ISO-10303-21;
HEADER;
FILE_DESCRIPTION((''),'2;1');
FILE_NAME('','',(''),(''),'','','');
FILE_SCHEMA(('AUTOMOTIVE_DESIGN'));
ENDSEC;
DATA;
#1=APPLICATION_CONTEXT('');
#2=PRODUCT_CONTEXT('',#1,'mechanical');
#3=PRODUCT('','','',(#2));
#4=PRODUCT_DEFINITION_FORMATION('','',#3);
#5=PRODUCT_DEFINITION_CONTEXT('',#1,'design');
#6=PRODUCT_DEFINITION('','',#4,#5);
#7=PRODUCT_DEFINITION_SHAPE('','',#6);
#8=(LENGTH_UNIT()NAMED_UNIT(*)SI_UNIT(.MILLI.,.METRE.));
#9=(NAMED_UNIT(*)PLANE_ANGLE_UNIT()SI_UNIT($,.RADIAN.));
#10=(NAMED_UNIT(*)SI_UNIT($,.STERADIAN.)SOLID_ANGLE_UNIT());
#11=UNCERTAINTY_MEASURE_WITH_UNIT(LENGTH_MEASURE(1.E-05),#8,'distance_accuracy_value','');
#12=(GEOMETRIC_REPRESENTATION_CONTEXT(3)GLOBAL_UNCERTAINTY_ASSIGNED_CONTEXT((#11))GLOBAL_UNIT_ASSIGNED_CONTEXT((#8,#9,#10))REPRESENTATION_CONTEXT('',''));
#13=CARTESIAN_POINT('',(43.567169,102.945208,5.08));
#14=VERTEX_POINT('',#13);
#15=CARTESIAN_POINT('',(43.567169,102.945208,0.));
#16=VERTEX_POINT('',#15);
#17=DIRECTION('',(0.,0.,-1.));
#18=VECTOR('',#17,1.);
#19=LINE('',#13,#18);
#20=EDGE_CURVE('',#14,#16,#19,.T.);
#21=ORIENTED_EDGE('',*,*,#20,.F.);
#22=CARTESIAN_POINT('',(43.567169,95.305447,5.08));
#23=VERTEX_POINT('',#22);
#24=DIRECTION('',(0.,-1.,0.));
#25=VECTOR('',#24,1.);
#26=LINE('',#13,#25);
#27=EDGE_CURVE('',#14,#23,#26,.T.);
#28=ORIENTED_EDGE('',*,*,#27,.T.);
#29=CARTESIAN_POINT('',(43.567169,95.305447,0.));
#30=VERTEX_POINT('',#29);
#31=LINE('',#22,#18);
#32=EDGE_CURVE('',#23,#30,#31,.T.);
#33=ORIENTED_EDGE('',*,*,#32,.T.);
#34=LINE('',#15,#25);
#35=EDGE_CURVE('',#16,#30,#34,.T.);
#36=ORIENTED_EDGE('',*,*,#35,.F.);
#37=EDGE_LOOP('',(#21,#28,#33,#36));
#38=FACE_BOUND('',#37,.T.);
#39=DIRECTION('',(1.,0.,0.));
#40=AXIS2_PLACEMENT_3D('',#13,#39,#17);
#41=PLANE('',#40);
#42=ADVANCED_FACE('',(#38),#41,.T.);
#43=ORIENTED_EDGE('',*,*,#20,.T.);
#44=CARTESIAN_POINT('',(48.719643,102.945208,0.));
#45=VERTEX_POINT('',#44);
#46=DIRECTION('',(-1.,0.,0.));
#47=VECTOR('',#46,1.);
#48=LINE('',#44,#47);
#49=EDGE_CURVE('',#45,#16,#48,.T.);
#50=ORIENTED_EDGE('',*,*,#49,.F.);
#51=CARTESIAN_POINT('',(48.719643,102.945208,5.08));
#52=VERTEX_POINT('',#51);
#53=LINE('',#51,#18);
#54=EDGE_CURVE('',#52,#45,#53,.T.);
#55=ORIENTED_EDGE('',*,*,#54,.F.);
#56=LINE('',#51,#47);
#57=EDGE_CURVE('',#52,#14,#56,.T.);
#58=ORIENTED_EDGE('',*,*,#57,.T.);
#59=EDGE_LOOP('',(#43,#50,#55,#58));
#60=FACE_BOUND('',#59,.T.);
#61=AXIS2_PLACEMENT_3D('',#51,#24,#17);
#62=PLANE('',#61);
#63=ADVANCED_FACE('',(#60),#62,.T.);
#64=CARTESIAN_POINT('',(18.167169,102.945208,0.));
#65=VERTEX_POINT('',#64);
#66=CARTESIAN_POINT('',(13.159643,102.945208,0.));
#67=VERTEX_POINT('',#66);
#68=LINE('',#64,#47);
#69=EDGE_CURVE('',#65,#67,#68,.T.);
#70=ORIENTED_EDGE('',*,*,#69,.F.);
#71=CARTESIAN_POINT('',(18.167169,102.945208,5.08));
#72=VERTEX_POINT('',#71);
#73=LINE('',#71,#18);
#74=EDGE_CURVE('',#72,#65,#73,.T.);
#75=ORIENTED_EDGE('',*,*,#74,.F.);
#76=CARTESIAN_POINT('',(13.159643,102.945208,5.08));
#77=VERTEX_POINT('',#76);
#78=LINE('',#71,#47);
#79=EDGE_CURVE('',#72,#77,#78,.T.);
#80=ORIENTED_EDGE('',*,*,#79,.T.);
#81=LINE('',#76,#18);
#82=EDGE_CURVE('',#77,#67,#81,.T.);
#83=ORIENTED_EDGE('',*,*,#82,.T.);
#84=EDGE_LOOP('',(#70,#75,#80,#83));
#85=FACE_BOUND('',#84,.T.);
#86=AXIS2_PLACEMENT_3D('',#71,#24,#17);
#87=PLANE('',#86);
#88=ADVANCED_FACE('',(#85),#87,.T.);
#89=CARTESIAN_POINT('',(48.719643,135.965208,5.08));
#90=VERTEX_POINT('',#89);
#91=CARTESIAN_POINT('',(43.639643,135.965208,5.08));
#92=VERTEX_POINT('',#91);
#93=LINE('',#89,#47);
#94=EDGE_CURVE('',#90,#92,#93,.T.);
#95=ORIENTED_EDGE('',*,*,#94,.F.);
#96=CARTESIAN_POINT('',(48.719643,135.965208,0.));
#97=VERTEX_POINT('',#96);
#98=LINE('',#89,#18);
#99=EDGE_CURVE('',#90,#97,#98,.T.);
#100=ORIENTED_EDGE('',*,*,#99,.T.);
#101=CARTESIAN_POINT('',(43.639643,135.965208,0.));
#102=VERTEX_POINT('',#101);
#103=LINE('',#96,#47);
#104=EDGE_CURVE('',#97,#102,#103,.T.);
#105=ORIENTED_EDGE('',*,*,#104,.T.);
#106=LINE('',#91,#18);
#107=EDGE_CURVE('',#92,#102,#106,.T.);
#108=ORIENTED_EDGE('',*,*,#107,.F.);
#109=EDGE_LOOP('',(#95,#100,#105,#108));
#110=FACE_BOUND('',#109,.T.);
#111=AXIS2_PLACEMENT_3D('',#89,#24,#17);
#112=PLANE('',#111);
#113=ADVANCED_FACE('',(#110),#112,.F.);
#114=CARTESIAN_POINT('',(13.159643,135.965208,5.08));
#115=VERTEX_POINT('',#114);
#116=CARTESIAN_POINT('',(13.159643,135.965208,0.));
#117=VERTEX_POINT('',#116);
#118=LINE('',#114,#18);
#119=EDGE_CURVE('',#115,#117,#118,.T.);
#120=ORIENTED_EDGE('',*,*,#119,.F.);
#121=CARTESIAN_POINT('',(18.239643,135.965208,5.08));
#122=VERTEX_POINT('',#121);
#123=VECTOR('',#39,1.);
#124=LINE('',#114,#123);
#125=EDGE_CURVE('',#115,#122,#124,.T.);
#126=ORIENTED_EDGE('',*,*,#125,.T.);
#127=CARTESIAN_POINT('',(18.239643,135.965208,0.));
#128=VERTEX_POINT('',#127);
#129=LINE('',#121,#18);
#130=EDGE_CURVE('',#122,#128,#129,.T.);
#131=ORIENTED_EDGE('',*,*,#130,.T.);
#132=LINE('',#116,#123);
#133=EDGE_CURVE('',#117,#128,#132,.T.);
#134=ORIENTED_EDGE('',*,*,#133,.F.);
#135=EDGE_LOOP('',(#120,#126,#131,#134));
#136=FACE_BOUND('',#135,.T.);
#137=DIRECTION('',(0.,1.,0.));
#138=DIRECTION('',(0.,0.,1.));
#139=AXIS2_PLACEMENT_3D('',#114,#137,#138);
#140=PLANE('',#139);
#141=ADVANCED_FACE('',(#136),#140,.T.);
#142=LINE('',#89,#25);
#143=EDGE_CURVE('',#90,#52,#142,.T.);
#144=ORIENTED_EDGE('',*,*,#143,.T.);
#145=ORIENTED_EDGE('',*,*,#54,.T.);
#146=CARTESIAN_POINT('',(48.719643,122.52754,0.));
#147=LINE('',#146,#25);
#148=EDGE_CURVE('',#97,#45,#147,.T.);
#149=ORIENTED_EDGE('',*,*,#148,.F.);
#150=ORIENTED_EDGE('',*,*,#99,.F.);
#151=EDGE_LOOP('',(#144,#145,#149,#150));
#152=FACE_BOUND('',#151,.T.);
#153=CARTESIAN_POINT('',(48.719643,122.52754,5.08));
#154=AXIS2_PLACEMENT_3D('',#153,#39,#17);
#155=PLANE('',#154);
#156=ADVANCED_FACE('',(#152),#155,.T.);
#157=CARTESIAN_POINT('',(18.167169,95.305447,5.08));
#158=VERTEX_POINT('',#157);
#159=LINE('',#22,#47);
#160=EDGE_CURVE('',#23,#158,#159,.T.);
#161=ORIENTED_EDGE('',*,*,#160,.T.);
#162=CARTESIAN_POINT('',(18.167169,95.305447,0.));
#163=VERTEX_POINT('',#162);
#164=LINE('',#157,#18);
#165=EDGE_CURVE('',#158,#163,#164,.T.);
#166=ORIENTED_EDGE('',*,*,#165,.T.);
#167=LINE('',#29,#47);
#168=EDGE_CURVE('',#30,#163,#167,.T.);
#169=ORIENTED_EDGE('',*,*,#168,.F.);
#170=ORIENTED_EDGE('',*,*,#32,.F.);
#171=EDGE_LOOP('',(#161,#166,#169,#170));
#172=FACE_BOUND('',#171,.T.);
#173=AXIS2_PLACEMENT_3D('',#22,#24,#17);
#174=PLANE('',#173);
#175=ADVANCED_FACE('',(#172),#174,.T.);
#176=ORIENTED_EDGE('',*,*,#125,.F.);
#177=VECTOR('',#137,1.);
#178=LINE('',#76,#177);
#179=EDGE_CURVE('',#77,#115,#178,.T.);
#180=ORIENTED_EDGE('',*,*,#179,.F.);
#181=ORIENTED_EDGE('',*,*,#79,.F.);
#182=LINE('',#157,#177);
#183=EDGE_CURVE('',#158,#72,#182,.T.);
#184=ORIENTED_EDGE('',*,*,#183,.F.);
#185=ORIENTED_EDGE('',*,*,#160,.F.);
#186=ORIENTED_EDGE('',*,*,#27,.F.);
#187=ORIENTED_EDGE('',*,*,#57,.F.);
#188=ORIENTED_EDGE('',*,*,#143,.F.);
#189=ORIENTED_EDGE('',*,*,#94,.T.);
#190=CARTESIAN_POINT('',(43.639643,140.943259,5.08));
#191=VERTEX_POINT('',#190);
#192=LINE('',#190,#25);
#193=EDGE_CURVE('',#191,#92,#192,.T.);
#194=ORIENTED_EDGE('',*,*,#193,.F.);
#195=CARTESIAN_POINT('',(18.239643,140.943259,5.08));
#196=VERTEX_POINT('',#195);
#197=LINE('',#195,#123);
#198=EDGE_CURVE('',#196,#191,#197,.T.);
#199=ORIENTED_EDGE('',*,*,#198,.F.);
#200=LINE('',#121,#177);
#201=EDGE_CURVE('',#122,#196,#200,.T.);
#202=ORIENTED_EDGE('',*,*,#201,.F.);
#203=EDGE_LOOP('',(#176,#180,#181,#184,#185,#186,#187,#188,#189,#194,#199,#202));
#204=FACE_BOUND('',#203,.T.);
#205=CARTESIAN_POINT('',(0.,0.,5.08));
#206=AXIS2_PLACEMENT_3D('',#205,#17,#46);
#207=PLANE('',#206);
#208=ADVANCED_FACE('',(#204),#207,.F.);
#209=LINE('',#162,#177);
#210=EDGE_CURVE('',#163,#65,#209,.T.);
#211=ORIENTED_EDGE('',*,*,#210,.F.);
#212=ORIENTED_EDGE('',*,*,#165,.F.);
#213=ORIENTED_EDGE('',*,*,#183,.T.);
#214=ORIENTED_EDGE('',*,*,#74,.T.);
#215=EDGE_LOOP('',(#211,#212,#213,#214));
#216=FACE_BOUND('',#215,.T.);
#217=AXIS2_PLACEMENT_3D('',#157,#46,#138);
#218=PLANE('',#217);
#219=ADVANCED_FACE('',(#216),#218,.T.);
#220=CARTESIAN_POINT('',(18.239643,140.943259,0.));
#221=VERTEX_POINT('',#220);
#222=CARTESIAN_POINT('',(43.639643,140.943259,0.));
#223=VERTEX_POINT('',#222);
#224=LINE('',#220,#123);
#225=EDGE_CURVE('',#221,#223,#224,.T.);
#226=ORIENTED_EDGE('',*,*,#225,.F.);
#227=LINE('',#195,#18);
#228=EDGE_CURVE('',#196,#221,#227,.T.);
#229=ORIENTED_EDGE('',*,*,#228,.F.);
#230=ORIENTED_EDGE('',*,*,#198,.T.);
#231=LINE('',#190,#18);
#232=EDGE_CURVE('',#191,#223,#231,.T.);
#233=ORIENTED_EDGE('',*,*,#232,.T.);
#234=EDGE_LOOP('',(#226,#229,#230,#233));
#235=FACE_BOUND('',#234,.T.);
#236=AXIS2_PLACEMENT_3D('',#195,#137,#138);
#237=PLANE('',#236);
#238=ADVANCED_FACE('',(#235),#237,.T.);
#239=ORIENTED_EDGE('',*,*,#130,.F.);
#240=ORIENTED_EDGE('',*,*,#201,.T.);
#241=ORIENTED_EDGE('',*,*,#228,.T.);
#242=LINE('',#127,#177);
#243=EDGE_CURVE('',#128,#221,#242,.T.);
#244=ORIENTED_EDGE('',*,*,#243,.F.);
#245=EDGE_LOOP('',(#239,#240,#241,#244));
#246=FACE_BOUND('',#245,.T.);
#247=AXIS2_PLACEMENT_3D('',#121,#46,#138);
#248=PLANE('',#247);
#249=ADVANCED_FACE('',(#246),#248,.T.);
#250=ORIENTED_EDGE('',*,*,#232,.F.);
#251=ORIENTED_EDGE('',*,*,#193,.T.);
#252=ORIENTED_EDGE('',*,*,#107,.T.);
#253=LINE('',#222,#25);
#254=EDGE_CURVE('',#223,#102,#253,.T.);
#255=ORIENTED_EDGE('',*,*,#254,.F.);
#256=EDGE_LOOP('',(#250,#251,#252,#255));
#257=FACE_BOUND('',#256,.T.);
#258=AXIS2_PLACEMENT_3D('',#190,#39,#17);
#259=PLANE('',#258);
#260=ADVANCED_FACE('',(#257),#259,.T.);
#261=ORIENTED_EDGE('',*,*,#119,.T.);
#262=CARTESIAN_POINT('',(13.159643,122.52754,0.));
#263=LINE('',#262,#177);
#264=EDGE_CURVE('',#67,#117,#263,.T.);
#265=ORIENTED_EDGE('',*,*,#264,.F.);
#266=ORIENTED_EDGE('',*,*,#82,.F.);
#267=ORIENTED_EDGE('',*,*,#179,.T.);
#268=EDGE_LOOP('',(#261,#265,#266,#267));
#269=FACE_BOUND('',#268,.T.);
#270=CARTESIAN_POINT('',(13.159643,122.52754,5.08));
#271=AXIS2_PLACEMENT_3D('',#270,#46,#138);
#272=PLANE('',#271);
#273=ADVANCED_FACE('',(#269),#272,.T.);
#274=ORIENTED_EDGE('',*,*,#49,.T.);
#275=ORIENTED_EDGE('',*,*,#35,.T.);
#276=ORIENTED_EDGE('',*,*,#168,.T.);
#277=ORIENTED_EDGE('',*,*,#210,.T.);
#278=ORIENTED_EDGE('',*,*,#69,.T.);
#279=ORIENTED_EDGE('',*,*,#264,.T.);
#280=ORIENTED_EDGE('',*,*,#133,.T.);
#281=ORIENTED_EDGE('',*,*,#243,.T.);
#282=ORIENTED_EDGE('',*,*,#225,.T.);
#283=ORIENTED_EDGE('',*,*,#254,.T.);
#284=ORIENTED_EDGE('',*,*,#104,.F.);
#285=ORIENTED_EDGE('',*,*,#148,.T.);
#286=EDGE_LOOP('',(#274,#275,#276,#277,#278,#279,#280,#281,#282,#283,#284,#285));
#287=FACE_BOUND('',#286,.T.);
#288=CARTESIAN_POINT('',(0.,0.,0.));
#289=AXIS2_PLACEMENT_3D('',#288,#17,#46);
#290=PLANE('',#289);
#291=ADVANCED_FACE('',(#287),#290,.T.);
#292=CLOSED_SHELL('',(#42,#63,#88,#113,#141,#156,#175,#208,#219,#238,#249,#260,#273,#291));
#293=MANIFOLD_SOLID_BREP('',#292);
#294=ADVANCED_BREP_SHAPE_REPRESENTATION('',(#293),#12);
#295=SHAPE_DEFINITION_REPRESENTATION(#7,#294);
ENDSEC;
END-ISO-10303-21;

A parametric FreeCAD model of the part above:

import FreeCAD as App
import Part
import Sketcher
Q = App.Units.Quantity


def add_polygon(sketch, points):
    """Adds a closed chain of lines whose ends are joined by coincident constraints."""
    first, n = sketch.GeometryCount, len(points)
    for a, b in zip(points, points[1:] + points[:1]):
        sketch.addGeometry(Part.LineSegment(App.Vector(*a, 0), App.Vector(*b, 0)), False)
    for i in range(n):
        sketch.addConstraint(Sketcher.Constraint("Coincident", first + i, 2, first + (i + 1) % n, 1))

doc = App.newDocument("Part")
body = doc.addObject("PartDesign::Body", "Body")

# Sketch on XY plane
sketch1 = doc.addObject("Sketcher::SketchObject", "Sketch")
body.addObject(sketch1)
sketch1.AttachmentSupport = (doc.XY_Plane, [""])
sketch1.MapMode = "FlatFace"
add_polygon(sketch1, [(48.7, 136), (43.6, 136), (43.6, 140.9), (18.2, 140.9), (18.2, 136), (13.2, 136), (13.2, 102.9), (18.2, 102.9), (18.2, 95.3), (43.6, 95.3), (43.6, 102.9), (48.7, 102.9)])  # lines 0-11
sketch1.addConstraint(Sketcher.Constraint("Horizontal", 0))
sketch1.addConstraint(Sketcher.Constraint("Vertical", 1))
sketch1.addConstraint(Sketcher.Constraint("Horizontal", 2))
sketch1.addConstraint(Sketcher.Constraint("Vertical", 3))
sketch1.addConstraint(Sketcher.Constraint("Horizontal", 4))
sketch1.addConstraint(Sketcher.Constraint("Vertical", 5))
sketch1.addConstraint(Sketcher.Constraint("Horizontal", 6))
sketch1.addConstraint(Sketcher.Constraint("Vertical", 7))
sketch1.addConstraint(Sketcher.Constraint("Horizontal", 8))
sketch1.addConstraint(Sketcher.Constraint("Vertical", 9))
sketch1.addConstraint(Sketcher.Constraint("Horizontal", 10))
sketch1.addConstraint(Sketcher.Constraint("Vertical", 11))
sketch1.addConstraint(Sketcher.Constraint("Horizontal", 0, 2, 3, 2))
sketch1.addConstraint(Sketcher.Constraint("Horizontal", 6, 2, 9, 2))
sketch1.addConstraint(Sketcher.Constraint("Equal", 0, 4))
sketch1.addConstraint(Sketcher.Constraint("Equal", 2, 8))
sketch1.addConstraint(Sketcher.Constraint("DistanceX", 2, 2, 2, 1, Q("1 in")))
sketch1.addConstraint(Sketcher.Constraint("DistanceX", 0, 2, 0, 1, Q("0.2 in")))
sketch1.addConstraint(Sketcher.Constraint("DistanceY", 5, 2, 5, 1, Q("1.3 in")))
sketch1.addConstraint(Sketcher.Constraint("DistanceY", 1, 1, 1, 2, Q("4.978051 mm")))
sketch1.addConstraint(Sketcher.Constraint("DistanceY", 7, 2, 7, 1, Q("7.639761 mm")))
sketch1.addConstraint(Sketcher.Constraint("DistanceX", 6, 1, 6, 2, Q("5.007526 mm")))
sketch1.addConstraint(Sketcher.Constraint("DistanceY", -1, 1, 0, 2, Q("135.965208 mm")))
sketch1.addConstraint(Sketcher.Constraint("DistanceX", -1, 1, 6, 2, Q("18.167169 mm")))
pad1 = doc.addObject("PartDesign::Pad", "Pad")
body.addObject(pad1)
pad1.Profile = sketch1
pad1.Length = Q("0.2 in")

doc.recompute()
